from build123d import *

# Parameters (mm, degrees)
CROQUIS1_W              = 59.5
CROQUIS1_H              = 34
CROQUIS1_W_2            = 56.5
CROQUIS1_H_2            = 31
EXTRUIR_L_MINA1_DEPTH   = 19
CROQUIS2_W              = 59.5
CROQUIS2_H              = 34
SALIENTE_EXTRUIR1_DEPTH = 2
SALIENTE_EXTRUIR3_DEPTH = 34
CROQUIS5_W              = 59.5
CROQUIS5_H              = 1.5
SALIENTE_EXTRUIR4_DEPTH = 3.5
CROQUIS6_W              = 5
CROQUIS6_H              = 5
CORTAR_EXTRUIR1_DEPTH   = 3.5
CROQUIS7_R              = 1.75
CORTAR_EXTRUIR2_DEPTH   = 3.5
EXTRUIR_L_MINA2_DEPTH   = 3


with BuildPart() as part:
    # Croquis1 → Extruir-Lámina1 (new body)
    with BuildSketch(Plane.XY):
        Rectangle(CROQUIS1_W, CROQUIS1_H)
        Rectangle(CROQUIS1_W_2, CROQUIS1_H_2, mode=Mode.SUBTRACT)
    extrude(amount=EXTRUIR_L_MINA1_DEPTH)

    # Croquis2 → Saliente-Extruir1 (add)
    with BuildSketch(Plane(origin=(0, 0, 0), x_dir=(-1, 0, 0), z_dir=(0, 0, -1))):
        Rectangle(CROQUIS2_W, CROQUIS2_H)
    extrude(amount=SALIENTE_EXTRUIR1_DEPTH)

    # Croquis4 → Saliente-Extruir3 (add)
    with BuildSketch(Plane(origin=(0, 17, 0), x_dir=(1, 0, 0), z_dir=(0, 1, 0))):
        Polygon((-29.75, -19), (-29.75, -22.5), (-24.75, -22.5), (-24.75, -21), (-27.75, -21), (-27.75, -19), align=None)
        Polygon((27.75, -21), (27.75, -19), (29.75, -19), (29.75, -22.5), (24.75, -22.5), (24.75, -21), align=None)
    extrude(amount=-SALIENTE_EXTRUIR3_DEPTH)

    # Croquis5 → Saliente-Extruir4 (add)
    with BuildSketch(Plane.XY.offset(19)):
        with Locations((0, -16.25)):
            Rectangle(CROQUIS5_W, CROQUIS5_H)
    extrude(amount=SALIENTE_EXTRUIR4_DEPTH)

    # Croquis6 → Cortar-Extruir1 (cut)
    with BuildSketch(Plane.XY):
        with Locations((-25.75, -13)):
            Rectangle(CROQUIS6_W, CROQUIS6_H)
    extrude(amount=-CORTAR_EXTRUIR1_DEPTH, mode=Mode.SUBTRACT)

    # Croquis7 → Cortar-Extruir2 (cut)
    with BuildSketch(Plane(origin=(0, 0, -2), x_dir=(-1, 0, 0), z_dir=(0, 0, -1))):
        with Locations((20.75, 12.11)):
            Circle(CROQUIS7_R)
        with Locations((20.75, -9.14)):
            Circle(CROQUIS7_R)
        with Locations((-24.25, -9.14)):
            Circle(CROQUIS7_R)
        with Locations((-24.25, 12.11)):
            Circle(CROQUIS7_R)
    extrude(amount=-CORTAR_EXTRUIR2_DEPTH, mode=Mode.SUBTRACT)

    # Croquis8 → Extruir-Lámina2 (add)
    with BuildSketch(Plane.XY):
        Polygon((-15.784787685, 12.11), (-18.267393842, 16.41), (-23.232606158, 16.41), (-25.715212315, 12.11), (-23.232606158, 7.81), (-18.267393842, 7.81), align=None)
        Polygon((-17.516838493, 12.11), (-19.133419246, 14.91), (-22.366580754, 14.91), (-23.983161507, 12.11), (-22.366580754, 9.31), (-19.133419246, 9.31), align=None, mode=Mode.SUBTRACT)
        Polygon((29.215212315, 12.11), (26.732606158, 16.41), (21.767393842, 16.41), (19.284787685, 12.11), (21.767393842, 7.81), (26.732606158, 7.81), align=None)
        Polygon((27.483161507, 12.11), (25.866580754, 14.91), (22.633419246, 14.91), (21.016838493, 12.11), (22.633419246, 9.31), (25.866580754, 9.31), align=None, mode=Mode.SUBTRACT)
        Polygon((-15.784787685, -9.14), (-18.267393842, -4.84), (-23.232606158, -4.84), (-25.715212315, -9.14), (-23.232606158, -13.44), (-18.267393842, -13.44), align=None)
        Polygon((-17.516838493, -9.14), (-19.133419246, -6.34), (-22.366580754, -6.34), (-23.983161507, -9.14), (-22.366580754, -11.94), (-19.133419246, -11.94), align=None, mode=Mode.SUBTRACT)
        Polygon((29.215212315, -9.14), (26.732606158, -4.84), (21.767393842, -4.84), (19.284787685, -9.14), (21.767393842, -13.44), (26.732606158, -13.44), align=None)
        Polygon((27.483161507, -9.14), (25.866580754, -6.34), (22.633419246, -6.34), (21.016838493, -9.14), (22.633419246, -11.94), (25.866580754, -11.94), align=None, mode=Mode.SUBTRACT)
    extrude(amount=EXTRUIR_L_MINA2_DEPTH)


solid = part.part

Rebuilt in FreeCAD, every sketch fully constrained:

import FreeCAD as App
import Part
import Sketcher

V = App.Vector
Q = App.Units.Quantity


def add_polygon(sketch, points):
    """Adds a closed chain of lines whose ends are joined by coincident constraints."""
    first, n = sketch.GeometryCount, len(points)
    for a, b in zip(points, points[1:] + points[:1]):
        sketch.addGeometry(Part.LineSegment(App.Vector(*a, 0), App.Vector(*b, 0)), False)
    for i in range(n):
        sketch.addConstraint(Sketcher.Constraint("Coincident", first + i, 2, first + (i + 1) % n, 1))

doc = App.newDocument("Part")
body = doc.addObject("PartDesign::Body", "Body")

# Sketch on XY plane
sketch1 = body.newObject("Sketcher::SketchObject", "Sketch")
sketch1.AttachmentSupport = (doc.getObject("XY_Plane"), [""])
sketch1.MapMode = "FlatFace"
add_polygon(sketch1, [(-30, 17), (-30, -17), (30, -17), (30, 17)])  # lines 0-3
add_polygon(sketch1, [(28, -16), (-28, -16), (-28, 16), (28, 16)])  # lines 4-7
sketch1.addConstraint([
    Sketcher.Constraint("Vertical", 0),
    Sketcher.Constraint("Horizontal", 1),
    Sketcher.Constraint("Vertical", 2),
    Sketcher.Constraint("Horizontal", 3),
    Sketcher.Constraint("Horizontal", 4),
    Sketcher.Constraint("Vertical", 5),
    Sketcher.Constraint("Horizontal", 6),
    Sketcher.Constraint("Vertical", 7),
    Sketcher.Constraint("Symmetric", 0, 2, 2, 2, -1, 1),
    Sketcher.Constraint("Symmetric", 4, 2, 6, 2, -1, 1),
    Sketcher.Constraint("DistanceY", 0, 2, 0, 1, Q("34 mm")),
    Sketcher.Constraint("DistanceY", 5, 1, 5, 2, Q("31 mm")),
    Sketcher.Constraint("DistanceX", 1, 1, 1, 2, Q("59.5 mm")),
    Sketcher.Constraint("DistanceX", 4, 2, 4, 1, Q("56.5 mm")),
])
pad1 = body.newObject("PartDesign::Pad", "Pad")
pad1.Profile = sketch1
pad1.Length = 19

# Sketch on XY plane
sketch2 = body.newObject("Sketcher::SketchObject", "Sketch001")
sketch2.AttachmentSupport = (doc.getObject("XY_Plane"), [""])
sketch2.MapMode = "FlatFace"
add_polygon(sketch2, [(30, 17), (30, -17), (-30, -17), (-30, 17)])  # lines 0-3
sketch2.addConstraint([
    Sketcher.Constraint("Vertical", 0),
    Sketcher.Constraint("Horizontal", 1),
    Sketcher.Constraint("Vertical", 2),
    Sketcher.Constraint("Horizontal", 3),
    Sketcher.Constraint("Symmetric", 0, 2, 2, 2, -1, 1),
    Sketcher.Constraint("DistanceY", 0, 2, 0, 1, Q("34 mm")),
    Sketcher.Constraint("DistanceX", 1, 2, 1, 1, Q("59.5 mm")),
])
pad2 = body.newObject("PartDesign::Pad", "Pad001")
pad2.Profile = sketch2
pad2.Length = 2
pad2.Reversed = True

# Sketch on XZ plane
sketch3 = body.newObject("Sketcher::SketchObject", "Sketch002")
sketch3.AttachmentSupport = (doc.getObject("XZ_Plane"), [""])
sketch3.MapMode = "FlatFace"
sketch3.AttachmentOffset = App.Placement(V(0, 0, -17), App.Rotation())
add_polygon(sketch3, [(-29.8, 19), (-29.8, 22.5), (-24.8, 22.5), (-24.8, 21), (-27.8, 21), (-27.8, 19)])  # lines 0-5
add_polygon(sketch3, [(27.8, 19), (27.8, 21), (24.8, 21), (24.8, 22.5), (29.8, 22.5), (29.8, 19)])  # lines 6-11
sketch3.addConstraint([
    Sketcher.Constraint("Vertical", 0),
    Sketcher.Constraint("Horizontal", 1),
    Sketcher.Constraint("Vertical", 2),
    Sketcher.Constraint("Horizontal", 3),
    Sketcher.Constraint("Vertical", 4),
    Sketcher.Constraint("Horizontal", 5),
    Sketcher.Constraint("Vertical", 6),
    Sketcher.Constraint("Horizontal", 7),
    Sketcher.Constraint("Vertical", 8),
    Sketcher.Constraint("Horizontal", 9),
    Sketcher.Constraint("Vertical", 10),
    Sketcher.Constraint("Horizontal", 11),
    Sketcher.Constraint("Symmetric", 3, 2, 6, 2, -2),
    Sketcher.Constraint("Symmetric", 1, 2, 8, 2, -2),
    Sketcher.Constraint("Symmetric", 5, 2, 10, 2, -2),
    Sketcher.Constraint("Equal", 11, 4),
    Sketcher.Constraint("DistanceX", 1, 1, 1, 2, Q("5 mm")),
    Sketcher.Constraint("DistanceX", 3, 2, 3, 1, Q("3 mm")),
    Sketcher.Constraint("DistanceY", 0, 1, 0, 2, Q("3.5 mm")),
    Sketcher.Constraint("DistanceY", -1, 1, 2, 2, Q("21 mm")),
    Sketcher.Constraint("DistanceX", 2, 2, 6, 2, Q("52.5 mm")),
])
pad3 = body.newObject("PartDesign::Pad", "Pad002")
pad3.Profile = sketch3
pad3.Length = 34

# Sketch on XY plane
sketch4 = body.newObject("Sketcher::SketchObject", "Sketch003")
sketch4.AttachmentSupport = (doc.getObject("XY_Plane"), [""])
sketch4.MapMode = "FlatFace"
sketch4.AttachmentOffset = App.Placement(V(0, 0, 19), App.Rotation())
add_polygon(sketch4, [(-29.8, -15.5), (-29.8, -17), (29.8, -17), (29.8, -15.5)])  # lines 0-3
sketch4.addConstraint([
    Sketcher.Constraint("Vertical", 0),
    Sketcher.Constraint("Horizontal", 1),
    Sketcher.Constraint("Vertical", 2),
    Sketcher.Constraint("Horizontal", 3),
    Sketcher.Constraint("DistanceX", 1, 1, 1, 2, Q("59.5 mm")),
    Sketcher.Constraint("DistanceY", 0, 2, 0, 1, Q("1.5 mm")),
    Sketcher.Constraint("DistanceY", 0, 2, -1, 1, Q("17 mm")),
    Sketcher.Constraint("DistanceX", 0, 2, -1, 1, Q("29.75 mm")),
])
pad4 = body.newObject("PartDesign::Pad", "Pad003")
pad4.Profile = sketch4
pad4.Length = 3.5

# Sketch on XY plane
sketch5 = body.newObject("Sketcher::SketchObject", "Sketch004")
sketch5.AttachmentSupport = (doc.getObject("XY_Plane"), [""])
sketch5.MapMode = "FlatFace"
add_polygon(sketch5, [(-28, -10), (-28, -16), (-23, -16), (-23, -10)])  # lines 0-3
sketch5.addConstraint([
    Sketcher.Constraint("Vertical", 0),
    Sketcher.Constraint("Horizontal", 1),
    Sketcher.Constraint("Vertical", 2),
    Sketcher.Constraint("Horizontal", 3),
    Sketcher.Constraint("Equal", 3, 0),
    Sketcher.Constraint("DistanceX", 1, 1, 1, 2, Q("5 mm")),
    Sketcher.Constraint("DistanceY", 0, 2, -1, 1, Q("15.5 mm")),
    Sketcher.Constraint("DistanceX", 0, 2, -1, 1, Q("28.25 mm")),
])
pocket1 = body.newObject("PartDesign::Pocket", "Pocket")
pocket1.Profile = sketch5
pocket1.Length = 3.5

# Sketch on XY plane
sketch6 = body.newObject("Sketcher::SketchObject", "Sketch005")
sketch6.AttachmentSupport = (doc.getObject("XY_Plane"), [""])
sketch6.MapMode = "FlatFace"
sketch6.AttachmentOffset = App.Placement(V(0, 0, -2), App.Rotation())
sketch6.addGeometry([
    Part.Circle(V(-20.8, 12.1, 0), V(0, 0, 1), 1.8),
    Part.Circle(V(-20.8, -9.1, 0), V(0, 0, 1), 1.8),
    Part.Circle(V(24.2, -9.1, 0), V(0, 0, 1), 1.8),
    Part.Circle(V(24.2, 12.1, 0), V(0, 0, 1), 1.8),
], False)
sketch6.addConstraint([
    Sketcher.Constraint("Equal", 0, 1),
    Sketcher.Constraint("Equal", 1, 2),
    Sketcher.Constraint("Equal", 2, 3),
    Sketcher.Constraint("Horizontal", 1, 3, 2, 3),
    Sketcher.Constraint("Horizontal", 0, 3, 3, 3),
    Sketcher.Constraint("Vertical", 0, 3, 1, 3),
    Sketcher.Constraint("Vertical", 2, 3, 3, 3),
    Sketcher.Constraint("Diameter", 0, Q("3.5 mm")),
    Sketcher.Constraint("DistanceX", 1, 3, 2, 3, Q("45 mm")),
    Sketcher.Constraint("DistanceX", 0, 3, -1, 1, Q("20.75 mm")),
    Sketcher.Constraint("DistanceY", -1, 1, 0, 3, Q("12.11 mm")),
    Sketcher.Constraint("DistanceY", 1, 3, -1, 1, Q("9.14 mm")),
])
pocket2 = body.newObject("PartDesign::Pocket", "Pocket001")
pocket2.Profile = sketch6
pocket2.Length = 3.5
pocket2.Reversed = True

# Sketch on XY plane
sketch7 = body.newObject("Sketcher::SketchObject", "Sketch006")
sketch7.AttachmentSupport = (doc.getObject("XY_Plane"), [""])
sketch7.MapMode = "FlatFace"
add_polygon(sketch7, [(-15.8, 12.1), (-18.3, 16.4), (-23.2, 16.4), (-25.7, 12.1), (-23.2, 7.8), (-18.3, 7.8)])  # lines 0-5
add_polygon(sketch7, [(-19.1, 14.9), (-17.5, 12.1), (-19.1, 9.3), (-22.4, 9.3), (-24, 12.1), (-22.4, 14.9)])  # lines 6-11
add_polygon(sketch7, [(29.2, 12.1), (26.7, 16.4), (21.8, 16.4), (19.3, 12.1), (21.8, 7.8), (26.7, 7.8)])  # lines 12-17
add_polygon(sketch7, [(25.9, 14.9), (27.5, 12.1), (25.9, 9.3), (22.6, 9.3), (21, 12.1), (22.6, 14.9)])  # lines 18-23
add_polygon(sketch7, [(-15.8, -9.1), (-18.3, -4.8), (-23.2, -4.8), (-25.7, -9.1), (-23.2, -13.4), (-18.3, -13.4)])  # lines 24-29
add_polygon(sketch7, [(-19.1, -6.3), (-17.5, -9.1), (-19.1, -11.9), (-22.4, -11.9), (-24, -9.1), (-22.4, -6.3)])  # lines 30-35
add_polygon(sketch7, [(29.2, -9.1), (26.7, -4.8), (21.8, -4.8), (19.3, -9.1), (21.8, -13.4), (26.7, -13.4)])  # lines 36-41
add_polygon(sketch7, [(25.9, -6.3), (27.5, -9.1), (25.9, -11.9), (22.6, -11.9), (21, -9.1), (22.6, -6.3)])  # lines 42-47
sketch7.addConstraint([
    Sketcher.Constraint("Horizontal", 1),
    Sketcher.Constraint("Horizontal", 4),
    Sketcher.Constraint("Horizontal", 8),
    Sketcher.Constraint("Horizontal", 11),
    Sketcher.Constraint("Horizontal", 13),
    Sketcher.Constraint("Horizontal", 16),
    Sketcher.Constraint("Horizontal", 20),
    Sketcher.Constraint("Horizontal", 23),
    Sketcher.Constraint("Horizontal", 25),
    Sketcher.Constraint("Horizontal", 28),
    Sketcher.Constraint("Horizontal", 32),
    Sketcher.Constraint("Horizontal", 35),
    Sketcher.Constraint("Horizontal", 37),
    Sketcher.Constraint("Horizontal", 40),
    Sketcher.Constraint("Horizontal", 44),
    Sketcher.Constraint("Horizontal", 47),
    Sketcher.Constraint("Parallel", 0, 3),
    Sketcher.Constraint("Parallel", 2, 5),
    Sketcher.Constraint("Parallel", 3, 6),
    Sketcher.Constraint("Parallel", 5, 7),
    Sketcher.Constraint("Parallel", 6, 9),
    Sketcher.Constraint("Parallel", 7, 10),
    Sketcher.Constraint("Parallel", 9, 12),
    Sketcher.Constraint("Parallel", 10, 14),
    Sketcher.Constraint("Parallel", 12, 15),
    Sketcher.Constraint("Parallel", 14, 17),
    Sketcher.Constraint("Parallel", 15, 18),
    Sketcher.Constraint("Parallel", 17, 19),
    Sketcher.Constraint("Parallel", 18, 21),
    Sketcher.Constraint("Parallel", 19, 22),
    Sketcher.Constraint("Parallel", 21, 24),
    Sketcher.Constraint("Parallel", 22, 26),
    Sketcher.Constraint("Parallel", 24, 27),
    Sketcher.Constraint("Parallel", 26, 29),
    Sketcher.Constraint("Parallel", 27, 30),
    Sketcher.Constraint("Parallel", 29, 31),
    Sketcher.Constraint("Parallel", 30, 33),
    Sketcher.Constraint("Parallel", 31, 34),
    Sketcher.Constraint("Parallel", 33, 36),
    Sketcher.Constraint("Parallel", 34, 38),
    Sketcher.Constraint("Parallel", 36, 39),
    Sketcher.Constraint("Parallel", 38, 41),
    Sketcher.Constraint("Parallel", 39, 42),
    Sketcher.Constraint("Parallel", 41, 43),
    Sketcher.Constraint("Parallel", 42, 45),
    Sketcher.Constraint("Parallel", 43, 46),
    Sketcher.Constraint("Horizontal", 2, 2, 5, 2),
    Sketcher.Constraint("Horizontal", 5, 2, 6, 2),
    Sketcher.Constraint("Horizontal", 6, 2, 9, 2),
    Sketcher.Constraint("Horizontal", 1, 2, 12, 2),
    Sketcher.Constraint("Horizontal", 9, 2, 14, 2),
    Sketcher.Constraint("Horizontal", 4, 2, 15, 2),
    Sketcher.Constraint("Horizontal", 14, 2, 17, 2),
    Sketcher.Constraint("Horizontal", 17, 2, 18, 2),
    Sketcher.Constraint("Horizontal", 8, 2, 19, 2),
    Sketcher.Constraint("Horizontal", 18, 2, 21, 2),
    Sketcher.Constraint("Horizontal", 11, 2, 22, 2),
    Sketcher.Constraint("Horizontal", 26, 2, 29, 2),
    Sketcher.Constraint("Horizontal", 29, 2, 30, 2),
    Sketcher.Constraint("Horizontal", 30, 2, 33, 2),
    Sketcher.Constraint("Horizontal", 25, 2, 36, 2),
    Sketcher.Constraint("Horizontal", 33, 2, 38, 2),
    Sketcher.Constraint("Horizontal", 28, 2, 39, 2),
    Sketcher.Constraint("Horizontal", 38, 2, 41, 2),
    Sketcher.Constraint("Horizontal", 41, 2, 42, 2),
    Sketcher.Constraint("Horizontal", 32, 2, 43, 2),
    Sketcher.Constraint("Horizontal", 42, 2, 45, 2),
    Sketcher.Constraint("Horizontal", 35, 2, 46, 2),
    Sketcher.Constraint("Vertical", 1, 2, 3, 2),
    Sketcher.Constraint("Vertical", 0, 2, 4, 2),
    Sketcher.Constraint("Vertical", 8, 2, 10, 2),
    Sketcher.Constraint("Vertical", 4, 2, 24, 2),
    Sketcher.Constraint("Vertical", 3, 2, 25, 2),
    Sketcher.Constraint("Vertical", 2, 2, 26, 2),
    Sketcher.Constraint("Vertical", 25, 2, 27, 2),
    Sketcher.Constraint("Vertical", 6, 2, 30, 2),
    Sketcher.Constraint("Vertical", 11, 2, 31, 2),
    Sketcher.Constraint("Vertical", 10, 2, 32, 2),
    Sketcher.Constraint("Vertical", 32, 2, 34, 2),
    Sketcher.Constraint("Vertical", 16, 2, 36, 2),
    Sketcher.Constraint("Vertical", 15, 2, 37, 2),
    Sketcher.Constraint("Vertical", 18, 2, 42, 2),
    Sketcher.Constraint("Vertical", 22, 2, 44, 2),
    Sketcher.Constraint("Equal", 4, 13),
    Sketcher.Constraint("Equal", 11, 20),
    Sketcher.Constraint("Angle", 0, Q("120 deg")),
    Sketcher.Constraint("DistanceX", 0, 2, 12, 2, Q("45 mm")),
    Sketcher.Constraint("DistanceY", 2, 2, 1, 2, Q("4.3 mm")),
    Sketcher.Constraint("DistanceY", 4, 2, 7, 2, Q("1.5 mm")),
    Sketcher.Constraint("DistanceY", -1, 1, 0, 2, Q("16.41 mm")),
    Sketcher.Constraint("DistanceY", 24, 2, -1, 1, Q("4.84 mm")),
    Sketcher.Constraint("DistanceX", 8, 2, 8, 1, Q("3.233162 mm")),
    Sketcher.Constraint("DistanceX", 1, 2, 1, 1, Q("4.965212 mm")),
    Sketcher.Constraint("DistanceX", 6, 2, -1, 1, Q("17.516838 mm")),
    Sketcher.Constraint("DistanceX", -1, 1, 18, 2, Q("27.483162 mm")),
    Sketcher.Constraint("DistanceX", 6, 2, 5, 2, Q("1.732051 mm")),
])
pad5 = body.newObject("PartDesign::Pad", "Pad004")
pad5.Profile = sketch7
pad5.Length = 3

doc.recompute()
